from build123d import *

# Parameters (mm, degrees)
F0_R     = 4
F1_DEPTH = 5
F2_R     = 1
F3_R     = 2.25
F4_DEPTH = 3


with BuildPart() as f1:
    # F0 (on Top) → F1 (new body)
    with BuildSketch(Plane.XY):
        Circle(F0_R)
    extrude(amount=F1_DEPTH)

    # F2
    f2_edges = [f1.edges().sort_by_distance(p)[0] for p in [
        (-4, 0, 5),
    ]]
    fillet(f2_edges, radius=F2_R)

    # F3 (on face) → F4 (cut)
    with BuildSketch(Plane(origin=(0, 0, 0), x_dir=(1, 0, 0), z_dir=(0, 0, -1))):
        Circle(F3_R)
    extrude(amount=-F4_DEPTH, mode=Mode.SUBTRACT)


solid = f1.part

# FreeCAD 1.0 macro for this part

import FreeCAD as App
import Part
import Sketcher


def edges_at(feature, points):
    """Names of the edges that pass closest to the given points."""
    edges = feature.Shape.Edges
    near = lambda p: min(range(len(edges)), key=lambda i: edges[i].distToShape(Part.Vertex(*p))[0])
    return sorted({f"Edge{near(p) + 1}" for p in points})

doc = App.newDocument("Part")
body = doc.addObject("PartDesign::Body", "Body")

sketch1 = body.newObject("Sketcher::SketchObject", "Sketch")
sketch1.AttachmentSupport = (doc.getObject("XY_Plane"), [""])
sketch1.MapMode = "FlatFace"
sketch1.addGeometry(Part.Circle(App.Vector(0, 0, 0), App.Vector(0, 0, 1), 4), False)
sketch1.addConstraint(Sketcher.Constraint("Coincident", 0, 3, -1, 1))
sketch1.addConstraint(Sketcher.Constraint("Diameter", 0, 8.0))
pad1 = body.newObject("PartDesign::Pad", "Pad")
pad1.Profile = sketch1
pad1.Length = 5
doc.recompute()

fillet = body.newObject("PartDesign::Fillet", "Fillet")
fillet.Base = (pad1, edges_at(pad1, [(-4, 0, 5)]))
fillet.Radius = 1

sketch2 = body.newObject("Sketcher::SketchObject", "Sketch001")
sketch2.AttachmentSupport = (doc.getObject("XY_Plane"), [""])
sketch2.MapMode = "FlatFace"
sketch2.addGeometry(Part.Circle(App.Vector(0, 0, 0), App.Vector(0, 0, 1), 2.2), False)
sketch2.addConstraint(Sketcher.Constraint("Coincident", 0, 3, -1, 1))
sketch2.addConstraint(Sketcher.Constraint("Diameter", 0, 4.5))
pocket1 = body.newObject("PartDesign::Pocket", "Pocket")
pocket1.Profile = sketch2
pocket1.Length = 3
pocket1.Reversed = True

doc.recompute()
